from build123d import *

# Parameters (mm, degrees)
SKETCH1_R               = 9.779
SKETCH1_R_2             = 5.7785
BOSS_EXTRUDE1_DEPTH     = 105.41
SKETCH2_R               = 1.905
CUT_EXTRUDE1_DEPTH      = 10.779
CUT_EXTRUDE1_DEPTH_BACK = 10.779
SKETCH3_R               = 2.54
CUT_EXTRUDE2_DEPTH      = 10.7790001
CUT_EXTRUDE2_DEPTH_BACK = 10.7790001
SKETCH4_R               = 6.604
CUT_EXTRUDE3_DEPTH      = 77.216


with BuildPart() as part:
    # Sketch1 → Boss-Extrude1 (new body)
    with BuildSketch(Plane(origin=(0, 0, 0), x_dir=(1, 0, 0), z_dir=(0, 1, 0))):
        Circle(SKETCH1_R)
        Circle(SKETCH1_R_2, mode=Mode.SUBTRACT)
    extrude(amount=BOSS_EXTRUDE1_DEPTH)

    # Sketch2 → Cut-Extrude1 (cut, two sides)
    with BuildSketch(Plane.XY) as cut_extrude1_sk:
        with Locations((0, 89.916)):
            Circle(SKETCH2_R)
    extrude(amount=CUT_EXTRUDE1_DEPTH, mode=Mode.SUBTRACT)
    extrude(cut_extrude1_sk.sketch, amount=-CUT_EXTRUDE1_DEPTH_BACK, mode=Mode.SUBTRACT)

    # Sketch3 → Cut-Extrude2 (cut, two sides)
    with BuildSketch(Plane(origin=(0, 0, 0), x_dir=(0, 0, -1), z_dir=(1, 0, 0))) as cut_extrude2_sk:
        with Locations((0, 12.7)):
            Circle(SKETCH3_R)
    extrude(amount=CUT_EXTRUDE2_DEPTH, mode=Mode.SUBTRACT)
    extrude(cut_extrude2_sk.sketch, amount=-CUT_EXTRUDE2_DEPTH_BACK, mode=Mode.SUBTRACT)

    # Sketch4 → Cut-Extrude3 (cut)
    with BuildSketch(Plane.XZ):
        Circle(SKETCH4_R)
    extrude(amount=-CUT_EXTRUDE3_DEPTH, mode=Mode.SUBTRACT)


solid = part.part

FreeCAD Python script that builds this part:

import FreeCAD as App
import Part
import Sketcher

V = App.Vector
Q = App.Units.Quantity

doc = App.newDocument("Part")
body = doc.addObject("PartDesign::Body", "Body")

sketch1 = body.newObject("Sketcher::SketchObject", "Sketch")
sketch1.AttachmentSupport = (doc.getObject("XZ_Plane"), [""])
sketch1.MapMode = "FlatFace"
sketch1.addGeometry([
    Part.Circle(V(0, 0, 0), V(0, 0, 1), 10),
    Part.Circle(V(0, 0, 0), V(0, 0, 1), 6),
], False)
sketch1.addConstraint([
    Sketcher.Constraint("Coincident", 0, 3, -1, 1),
    Sketcher.Constraint("Coincident", 1, 3, -1, 1),
    Sketcher.Constraint("Diameter", 0, Q("0.77 in")),
    Sketcher.Constraint("Diameter", 1, Q("0.455 in")),
])
pad1 = body.newObject("PartDesign::Pad", "Pad")
pad1.Profile = sketch1
pad1.Length = Q("4.15 in")
pad1.Reversed = True

sketch2 = body.newObject("Sketcher::SketchObject", "Sketch001")
sketch2.AttachmentSupport = (doc.getObject("XY_Plane"), [""])
sketch2.MapMode = "FlatFace"
sketch2.addGeometry(Part.Circle(V(0, 89.9, 0), V(0, 0, 1), 1.9), False)
sketch2.addConstraint([
    Sketcher.Constraint("PointOnObject", 0, 3, -2),
    Sketcher.Constraint("Diameter", 0, Q("0.15 in")),
    Sketcher.Constraint("DistanceY", -1, 1, 0, 3, Q("3.54 in")),
])
pocket1 = body.newObject("PartDesign::Pocket", "Pocket")
pocket1.Profile = sketch2
pocket1.Type = "ThroughAll"
pocket1.Midplane = True

sketch3 = body.newObject("Sketcher::SketchObject", "Sketch002")
sketch3.AttachmentSupport = (doc.getObject("YZ_Plane"), [""])
sketch3.MapMode = "FlatFace"
sketch3.addGeometry(Part.Circle(V(12.7, 0, 0), V(0, 0, 1), 2.5), False)
sketch3.addConstraint([
    Sketcher.Constraint("PointOnObject", 0, 3, -1),
    Sketcher.Constraint("Diameter", 0, Q("0.2 in")),
    Sketcher.Constraint("DistanceX", -1, 1, 0, 3, Q("0.5 in")),
])
pocket2 = body.newObject("PartDesign::Pocket", "Pocket001")
pocket2.Profile = sketch3
pocket2.Type = "ThroughAll"
pocket2.Midplane = True

sketch4 = body.newObject("Sketcher::SketchObject", "Sketch003")
sketch4.AttachmentSupport = (doc.getObject("XZ_Plane"), [""])
sketch4.MapMode = "FlatFace"
sketch4.addGeometry(Part.Circle(V(0, 0, 0), V(0, 0, 1), 7), False)
sketch4.addConstraint([
    Sketcher.Constraint("Coincident", 0, 3, -1, 1),
    Sketcher.Constraint("Diameter", 0, Q("0.52 in")),
])
pocket3 = body.newObject("PartDesign::Pocket", "Pocket002")
pocket3.Profile = sketch4
pocket3.Length = Q("3.04 in")

doc.recompute()
